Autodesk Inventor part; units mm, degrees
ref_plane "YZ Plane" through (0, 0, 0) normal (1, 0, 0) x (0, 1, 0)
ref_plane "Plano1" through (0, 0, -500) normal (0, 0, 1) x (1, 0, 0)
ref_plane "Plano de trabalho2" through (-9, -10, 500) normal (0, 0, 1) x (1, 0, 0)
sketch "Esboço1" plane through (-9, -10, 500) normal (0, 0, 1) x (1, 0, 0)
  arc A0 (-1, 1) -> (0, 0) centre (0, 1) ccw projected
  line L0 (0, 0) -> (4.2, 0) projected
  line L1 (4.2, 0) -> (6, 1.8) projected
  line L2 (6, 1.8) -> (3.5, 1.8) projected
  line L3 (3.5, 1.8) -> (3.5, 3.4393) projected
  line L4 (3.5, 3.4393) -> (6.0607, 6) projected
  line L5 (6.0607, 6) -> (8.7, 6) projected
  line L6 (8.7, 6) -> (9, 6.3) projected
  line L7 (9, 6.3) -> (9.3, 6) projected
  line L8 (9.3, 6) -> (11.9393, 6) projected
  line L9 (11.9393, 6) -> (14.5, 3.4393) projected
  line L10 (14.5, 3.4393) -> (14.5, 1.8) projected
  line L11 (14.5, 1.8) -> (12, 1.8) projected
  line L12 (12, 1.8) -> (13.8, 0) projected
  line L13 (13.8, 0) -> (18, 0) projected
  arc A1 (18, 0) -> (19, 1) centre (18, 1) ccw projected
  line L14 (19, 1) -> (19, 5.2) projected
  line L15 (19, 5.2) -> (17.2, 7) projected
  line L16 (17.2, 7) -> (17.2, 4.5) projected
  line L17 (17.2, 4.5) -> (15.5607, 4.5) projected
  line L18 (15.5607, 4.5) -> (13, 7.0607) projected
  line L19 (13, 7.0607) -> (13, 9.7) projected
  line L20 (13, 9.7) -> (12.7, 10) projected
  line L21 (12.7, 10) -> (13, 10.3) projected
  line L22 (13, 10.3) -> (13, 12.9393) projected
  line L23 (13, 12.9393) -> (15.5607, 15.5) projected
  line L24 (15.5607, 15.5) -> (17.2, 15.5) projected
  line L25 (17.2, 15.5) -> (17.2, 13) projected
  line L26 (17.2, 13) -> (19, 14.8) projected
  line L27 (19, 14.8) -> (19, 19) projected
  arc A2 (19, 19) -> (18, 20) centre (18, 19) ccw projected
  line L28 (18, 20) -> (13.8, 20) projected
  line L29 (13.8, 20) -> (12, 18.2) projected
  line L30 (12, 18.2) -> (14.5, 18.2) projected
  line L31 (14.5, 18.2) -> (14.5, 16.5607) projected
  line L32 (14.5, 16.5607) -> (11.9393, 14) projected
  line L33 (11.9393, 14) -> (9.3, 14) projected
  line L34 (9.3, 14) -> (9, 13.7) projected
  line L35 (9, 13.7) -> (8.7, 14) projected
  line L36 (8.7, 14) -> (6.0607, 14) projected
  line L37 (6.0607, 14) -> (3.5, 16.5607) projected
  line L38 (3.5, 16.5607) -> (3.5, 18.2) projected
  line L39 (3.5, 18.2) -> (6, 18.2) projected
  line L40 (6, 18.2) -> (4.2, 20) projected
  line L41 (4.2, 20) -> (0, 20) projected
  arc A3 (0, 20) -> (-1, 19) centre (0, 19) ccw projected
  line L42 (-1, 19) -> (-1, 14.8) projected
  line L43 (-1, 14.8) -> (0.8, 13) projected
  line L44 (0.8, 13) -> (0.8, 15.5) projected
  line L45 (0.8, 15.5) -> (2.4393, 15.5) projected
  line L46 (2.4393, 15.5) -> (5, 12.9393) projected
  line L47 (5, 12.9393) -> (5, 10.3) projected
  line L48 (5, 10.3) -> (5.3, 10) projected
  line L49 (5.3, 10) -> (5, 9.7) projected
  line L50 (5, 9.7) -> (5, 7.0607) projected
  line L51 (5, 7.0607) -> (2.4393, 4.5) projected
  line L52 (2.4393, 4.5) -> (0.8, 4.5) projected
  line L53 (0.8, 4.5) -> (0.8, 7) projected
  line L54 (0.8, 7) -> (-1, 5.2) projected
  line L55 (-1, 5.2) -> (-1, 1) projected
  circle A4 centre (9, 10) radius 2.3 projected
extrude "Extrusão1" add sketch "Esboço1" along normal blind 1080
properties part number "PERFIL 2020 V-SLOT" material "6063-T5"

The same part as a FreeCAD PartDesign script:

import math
import FreeCAD as App
import Part
import Sketcher

V = App.Vector

doc = App.newDocument("Part")
body = doc.addObject("PartDesign::Body", "Body")

sketch1 = body.newObject("Sketcher::SketchObject", "Sketch")
sketch1.AttachmentSupport = (doc.getObject("XY_Plane"), [""])
sketch1.MapMode = "FlatFace"
sketch1.AttachmentOffset = App.Placement(V(0, 0, 500), App.Rotation())
sketch1.addGeometry(Part.LineSegment(V(-10, -4.8, 0), V(-10, -9, 0)), False)
sketch1.addGeometry(Part.ArcOfCircle(Part.Circle(V(-9, -9, 0), V(0, 0, 1), 1), math.radians(180), math.radians(270)), False)
sketch1.addGeometry(Part.LineSegment(V(-9, -10, 0), V(-4.8, -10, 0)), False)
sketch1.addGeometry(Part.LineSegment(V(-4.8, -10, 0), V(-3, -8.2, 0)), False)
sketch1.addGeometry(Part.LineSegment(V(-3, -8.2, 0), V(-5.5, -8.2, 0)), False)
sketch1.addGeometry(Part.LineSegment(V(-5.5, -8.2, 0), V(-5.5, -6.56, 0)), False)
sketch1.addGeometry(Part.LineSegment(V(-5.5, -6.56, 0), V(-2.94, -4, 0)), False)
sketch1.addGeometry(Part.LineSegment(V(-2.94, -4, 0), V(-0.3, -4, 0)), False)
sketch1.addGeometry(Part.LineSegment(V(-0.3, -4, 0), V(0, -3.7, 0)), False)
sketch1.addGeometry(Part.LineSegment(V(0, -3.7, 0), V(0.3, -4, 0)), False)
sketch1.addGeometry(Part.LineSegment(V(0.3, -4, 0), V(2.94, -4, 0)), False)
sketch1.addGeometry(Part.LineSegment(V(2.94, -4, 0), V(5.5, -6.56, 0)), False)
sketch1.addGeometry(Part.LineSegment(V(5.5, -6.56, 0), V(5.5, -8.2, 0)), False)
sketch1.addGeometry(Part.LineSegment(V(5.5, -8.2, 0), V(3, -8.2, 0)), False)
sketch1.addGeometry(Part.LineSegment(V(3, -8.2, 0), V(4.8, -10, 0)), False)
sketch1.addGeometry(Part.LineSegment(V(4.8, -10, 0), V(9, -10, 0)), False)
sketch1.addGeometry(Part.ArcOfCircle(Part.Circle(V(9, -9, 0), V(0, 0, 1), 1), math.radians(-90), math.radians(0)), False)
sketch1.addGeometry(Part.LineSegment(V(10, -9, 0), V(10, -4.8, 0)), False)
sketch1.addGeometry(Part.LineSegment(V(10, -4.8, 0), V(8.2, -3, 0)), False)
sketch1.addGeometry(Part.LineSegment(V(8.2, -3, 0), V(8.2, -5.5, 0)), False)
sketch1.addGeometry(Part.LineSegment(V(8.2, -5.5, 0), V(6.56, -5.5, 0)), False)
sketch1.addGeometry(Part.LineSegment(V(6.56, -5.5, 0), V(4, -2.94, 0)), False)
sketch1.addGeometry(Part.LineSegment(V(4, -2.94, 0), V(4, -0.3, 0)), False)
sketch1.addGeometry(Part.LineSegment(V(4, -0.3, 0), V(3.7, 0, 0)), False)
sketch1.addGeometry(Part.LineSegment(V(3.7, 0, 0), V(4, 0.3, 0)), False)
sketch1.addGeometry(Part.LineSegment(V(4, 0.3, 0), V(4, 2.94, 0)), False)
sketch1.addGeometry(Part.LineSegment(V(4, 2.94, 0), V(6.56, 5.5, 0)), False)
sketch1.addGeometry(Part.LineSegment(V(6.56, 5.5, 0), V(8.2, 5.5, 0)), False)
sketch1.addGeometry(Part.LineSegment(V(8.2, 5.5, 0), V(8.2, 3, 0)), False)
sketch1.addGeometry(Part.LineSegment(V(8.2, 3, 0), V(10, 4.8, 0)), False)
sketch1.addGeometry(Part.LineSegment(V(10, 4.8, 0), V(10, 9, 0)), False)
sketch1.addGeometry(Part.ArcOfCircle(Part.Circle(V(9, 9, 0), V(0, 0, 1), 1), math.radians(0), math.radians(90)), False)
sketch1.addGeometry(Part.LineSegment(V(9, 10, 0), V(4.8, 10, 0)), False)
sketch1.addGeometry(Part.LineSegment(V(4.8, 10, 0), V(3, 8.2, 0)), False)
sketch1.addGeometry(Part.LineSegment(V(3, 8.2, 0), V(5.5, 8.2, 0)), False)
sketch1.addGeometry(Part.LineSegment(V(5.5, 8.2, 0), V(5.5, 6.56, 0)), False)
sketch1.addGeometry(Part.LineSegment(V(5.5, 6.56, 0), V(2.94, 4, 0)), False)
sketch1.addGeometry(Part.LineSegment(V(2.94, 4, 0), V(0.3, 4, 0)), False)
sketch1.addGeometry(Part.LineSegment(V(0.3, 4, 0), V(0, 3.7, 0)), False)
sketch1.addGeometry(Part.LineSegment(V(0, 3.7, 0), V(-0.3, 4, 0)), False)
sketch1.addGeometry(Part.LineSegment(V(-0.3, 4, 0), V(-2.94, 4, 0)), False)
sketch1.addGeometry(Part.LineSegment(V(-2.94, 4, 0), V(-5.5, 6.56, 0)), False)
sketch1.addGeometry(Part.LineSegment(V(-5.5, 6.56, 0), V(-5.5, 8.2, 0)), False)
sketch1.addGeometry(Part.LineSegment(V(-5.5, 8.2, 0), V(-3, 8.2, 0)), False)
sketch1.addGeometry(Part.LineSegment(V(-3, 8.2, 0), V(-4.8, 10, 0)), False)
sketch1.addGeometry(Part.LineSegment(V(-4.8, 10, 0), V(-9, 10, 0)), False)
sketch1.addGeometry(Part.ArcOfCircle(Part.Circle(V(-9, 9, 0), V(0, 0, 1), 1), math.radians(90), math.radians(180)), False)
sketch1.addGeometry(Part.LineSegment(V(-10, 9, 0), V(-10, 4.8, 0)), False)
sketch1.addGeometry(Part.LineSegment(V(-10, 4.8, 0), V(-8.2, 3, 0)), False)
sketch1.addGeometry(Part.LineSegment(V(-8.2, 3, 0), V(-8.2, 5.5, 0)), False)
sketch1.addGeometry(Part.LineSegment(V(-8.2, 5.5, 0), V(-6.56, 5.5, 0)), False)
sketch1.addGeometry(Part.LineSegment(V(-6.56, 5.5, 0), V(-4, 2.94, 0)), False)
sketch1.addGeometry(Part.LineSegment(V(-4, 2.94, 0), V(-4, 0.3, 0)), False)
sketch1.addGeometry(Part.LineSegment(V(-4, 0.3, 0), V(-3.7, 0, 0)), False)
sketch1.addGeometry(Part.LineSegment(V(-3.7, 0, 0), V(-4, -0.3, 0)), False)
sketch1.addGeometry(Part.LineSegment(V(-4, -0.3, 0), V(-4, -2.94, 0)), False)
sketch1.addGeometry(Part.LineSegment(V(-4, -2.94, 0), V(-6.56, -5.5, 0)), False)
sketch1.addGeometry(Part.LineSegment(V(-6.56, -5.5, 0), V(-8.2, -5.5, 0)), False)
sketch1.addGeometry(Part.LineSegment(V(-8.2, -5.5, 0), V(-8.2, -3, 0)), False)
sketch1.addGeometry(Part.LineSegment(V(-8.2, -3, 0), V(-10, -4.8, 0)), False)
sketch1.addGeometry(Part.Circle(V(0, 0, 0), V(0, 0, 1), 2.3), False)
sketch1.addConstraint(Sketcher.Constraint("Tangent", 0, 2, 1, 1))
sketch1.addConstraint(Sketcher.Constraint("Tangent", 1, 2, 2, 1))
sketch1.addConstraint(Sketcher.Constraint("Coincident", 2, 2, 3, 1))
sketch1.addConstraint(Sketcher.Constraint("Coincident", 3, 2, 4, 1))
sketch1.addConstraint(Sketcher.Constraint("Coincident", 4, 2, 5, 1))
sketch1.addConstraint(Sketcher.Constraint("Coincident", 5, 2, 6, 1))
sketch1.addConstraint(Sketcher.Constraint("Coincident", 6, 2, 7, 1))
sketch1.addConstraint(Sketcher.Constraint("Coincident", 7, 2, 8, 1))
sketch1.addConstraint(Sketcher.Constraint("Coincident", 8, 2, 9, 1))
sketch1.addConstraint(Sketcher.Constraint("Coincident", 9, 2, 10, 1))
sketch1.addConstraint(Sketcher.Constraint("Coincident", 10, 2, 11, 1))
sketch1.addConstraint(Sketcher.Constraint("Coincident", 11, 2, 12, 1))
sketch1.addConstraint(Sketcher.Constraint("Coincident", 12, 2, 13, 1))
sketch1.addConstraint(Sketcher.Constraint("Coincident", 13, 2, 14, 1))
sketch1.addConstraint(Sketcher.Constraint("Coincident", 14, 2, 15, 1))
sketch1.addConstraint(Sketcher.Constraint("Tangent", 15, 2, 16, 1))
sketch1.addConstraint(Sketcher.Constraint("Tangent", 16, 2, 17, 1))
sketch1.addConstraint(Sketcher.Constraint("Coincident", 17, 2, 18, 1))
sketch1.addConstraint(Sketcher.Constraint("Coincident", 18, 2, 19, 1))
sketch1.addConstraint(Sketcher.Constraint("Coincident", 19, 2, 20, 1))
sketch1.addConstraint(Sketcher.Constraint("Coincident", 20, 2, 21, 1))
sketch1.addConstraint(Sketcher.Constraint("Coincident", 21, 2, 22, 1))
sketch1.addConstraint(Sketcher.Constraint("Coincident", 22, 2, 23, 1))
sketch1.addConstraint(Sketcher.Constraint("Coincident", 23, 2, 24, 1))
sketch1.addConstraint(Sketcher.Constraint("Coincident", 24, 2, 25, 1))
sketch1.addConstraint(Sketcher.Constraint("Coincident", 25, 2, 26, 1))
sketch1.addConstraint(Sketcher.Constraint("Coincident", 26, 2, 27, 1))
sketch1.addConstraint(Sketcher.Constraint("Coincident", 27, 2, 28, 1))
sketch1.addConstraint(Sketcher.Constraint("Coincident", 28, 2, 29, 1))
sketch1.addConstraint(Sketcher.Constraint("Coincident", 29, 2, 30, 1))
sketch1.addConstraint(Sketcher.Constraint("Tangent", 30, 2, 31, 1))
sketch1.addConstraint(Sketcher.Constraint("Tangent", 31, 2, 32, 1))
sketch1.addConstraint(Sketcher.Constraint("Coincident", 32, 2, 33, 1))
sketch1.addConstraint(Sketcher.Constraint("Coincident", 33, 2, 34, 1))
sketch1.addConstraint(Sketcher.Constraint("Coincident", 34, 2, 35, 1))
sketch1.addConstraint(Sketcher.Constraint("Coincident", 35, 2, 36, 1))
sketch1.addConstraint(Sketcher.Constraint("Coincident", 36, 2, 37, 1))
sketch1.addConstraint(Sketcher.Constraint("Coincident", 37, 2, 38, 1))
sketch1.addConstraint(Sketcher.Constraint("Coincident", 38, 2, 39, 1))
sketch1.addConstraint(Sketcher.Constraint("Coincident", 39, 2, 40, 1))
sketch1.addConstraint(Sketcher.Constraint("Coincident", 40, 2, 41, 1))
sketch1.addConstraint(Sketcher.Constraint("Coincident", 41, 2, 42, 1))
sketch1.addConstraint(Sketcher.Constraint("Coincident", 42, 2, 43, 1))
sketch1.addConstraint(Sketcher.Constraint("Coincident", 43, 2, 44, 1))
sketch1.addConstraint(Sketcher.Constraint("Coincident", 44, 2, 45, 1))
sketch1.addConstraint(Sketcher.Constraint("Tangent", 45, 2, 46, 1))
sketch1.addConstraint(Sketcher.Constraint("Tangent", 46, 2, 47, 1))
sketch1.addConstraint(Sketcher.Constraint("Coincident", 47, 2, 48, 1))
sketch1.addConstraint(Sketcher.Constraint("Coincident", 48, 2, 49, 1))
sketch1.addConstraint(Sketcher.Constraint("Coincident", 49, 2, 50, 1))
sketch1.addConstraint(Sketcher.Constraint("Coincident", 50, 2, 51, 1))
sketch1.addConstraint(Sketcher.Constraint("Coincident", 51, 2, 52, 1))
sketch1.addConstraint(Sketcher.Constraint("Coincident", 52, 2, 53, 1))
sketch1.addConstraint(Sketcher.Constraint("Coincident", 53, 2, 54, 1))
sketch1.addConstraint(Sketcher.Constraint("Coincident", 54, 2, 55, 1))
sketch1.addConstraint(Sketcher.Constraint("Coincident", 55, 2, 56, 1))
sketch1.addConstraint(Sketcher.Constraint("Coincident", 56, 2, 57, 1))
sketch1.addConstraint(Sketcher.Constraint("Coincident", 57, 2, 58, 1))
sketch1.addConstraint(Sketcher.Constraint("Coincident", 58, 2, 59, 1))
sketch1.addConstraint(Sketcher.Constraint("Coincident", 59, 2, 0, 1))
sketch1.addConstraint(Sketcher.Constraint("Vertical", 0))
sketch1.addConstraint(Sketcher.Constraint("Horizontal", 2))
sketch1.addConstraint(Sketcher.Constraint("Horizontal", 4))
sketch1.addConstraint(Sketcher.Constraint("Vertical", 5))
sketch1.addConstraint(Sketcher.Constraint("Horizontal", 7))
sketch1.addConstraint(Sketcher.Constraint("Horizontal", 10))
sketch1.addConstraint(Sketcher.Constraint("Vertical", 12))
sketch1.addConstraint(Sketcher.Constraint("Horizontal", 13))
sketch1.addConstraint(Sketcher.Constraint("Horizontal", 15))
sketch1.addConstraint(Sketcher.Constraint("Vertical", 17))
sketch1.addConstraint(Sketcher.Constraint("Vertical", 19))
sketch1.addConstraint(Sketcher.Constraint("Horizontal", 20))
sketch1.addConstraint(Sketcher.Constraint("Vertical", 22))
sketch1.addConstraint(Sketcher.Constraint("Vertical", 25))
sketch1.addConstraint(Sketcher.Constraint("Horizontal", 27))
sketch1.addConstraint(Sketcher.Constraint("Vertical", 28))
sketch1.addConstraint(Sketcher.Constraint("Vertical", 30))
sketch1.addConstraint(Sketcher.Constraint("Horizontal", 32))
sketch1.addConstraint(Sketcher.Constraint("Horizontal", 34))
sketch1.addConstraint(Sketcher.Constraint("Vertical", 35))
sketch1.addConstraint(Sketcher.Constraint("Horizontal", 37))
sketch1.addConstraint(Sketcher.Constraint("Horizontal", 40))
sketch1.addConstraint(Sketcher.Constraint("Vertical", 42))
sketch1.addConstraint(Sketcher.Constraint("Horizontal", 43))
sketch1.addConstraint(Sketcher.Constraint("Horizontal", 45))
sketch1.addConstraint(Sketcher.Constraint("Vertical", 47))
sketch1.addConstraint(Sketcher.Constraint("Vertical", 49))
sketch1.addConstraint(Sketcher.Constraint("Horizontal", 50))
sketch1.addConstraint(Sketcher.Constraint("Vertical", 52))
sketch1.addConstraint(Sketcher.Constraint("Vertical", 55))
sketch1.addConstraint(Sketcher.Constraint("Horizontal", 57))
sketch1.addConstraint(Sketcher.Constraint("Vertical", 58))
sketch1.addConstraint(Sketcher.Constraint("Coincident", 60, 3, -1, 1))
sketch1.addConstraint(Sketcher.Constraint("Equal", 1, 16))
sketch1.addConstraint(Sketcher.Constraint("Equal", 16, 31))
sketch1.addConstraint(Sketcher.Constraint("Equal", 31, 46))
sketch1.addConstraint(Sketcher.Constraint("Symmetric", 1, 3, 31, 3, -1, 1))
sketch1.addConstraint(Sketcher.Constraint("Symmetric", 16, 3, 46, 3, -1, 1))
sketch1.addConstraint(Sketcher.Constraint("Symmetric", 3, 2, 33, 2, -1, 1))
sketch1.addConstraint(Sketcher.Constraint("Symmetric", 5, 2, 35, 2, -1, 1))
sketch1.addConstraint(Sketcher.Constraint("Symmetric", 6, 2, 36, 2, -1, 1))
sketch1.addConstraint(Sketcher.Constraint("Symmetric", 8, 2, 38, 2, -1, 1))
sketch1.addConstraint(Sketcher.Constraint("Symmetric", 9, 2, 39, 2, -1, 1))
sketch1.addConstraint(Sketcher.Constraint("Symmetric", 11, 2, 41, 2, -1, 1))
sketch1.addConstraint(Sketcher.Constraint("Symmetric", 13, 2, 43, 2, -1, 1))
sketch1.addConstraint(Sketcher.Constraint("Symmetric", 18, 2, 48, 2, -1, 1))
sketch1.addConstraint(Sketcher.Constraint("Symmetric", 20, 2, 50, 2, -1, 1))
sketch1.addConstraint(Sketcher.Constraint("Symmetric", 21, 2, 51, 2, -1, 1))
sketch1.addConstraint(Sketcher.Constraint("Symmetric", 23, 2, 53, 2, -1, 1))
sketch1.addConstraint(Sketcher.Constraint("Symmetric", 24, 2, 54, 2, -1, 1))
sketch1.addConstraint(Sketcher.Constraint("Symmetric", 26, 2, 56, 2, -1, 1))
sketch1.addConstraint(Sketcher.Constraint("Symmetric", 28, 2, 58, 2, -1, 1))
sketch1.addConstraint(Sketcher.Constraint("Symmetric", 1, 3, 16, 3, -2))
sketch1.addConstraint(Sketcher.Constraint("Symmetric", 7, 2, 9, 2, -2))
sketch1.addConstraint(Sketcher.Constraint("Symmetric", 5, 2, 11, 2, -2))
sketch1.addConstraint(Sketcher.Constraint("Symmetric", 3, 2, 13, 2, -2))
sketch1.addConstraint(Sketcher.Constraint("Symmetric", 28, 2, 48, 2, -2))
sketch1.addConstraint(Sketcher.Constraint("Symmetric", 26, 2, 50, 2, -2))
sketch1.addConstraint(Sketcher.Constraint("Symmetric", 25, 2, 51, 2, -2))
sketch1.addConstraint(Sketcher.Constraint("PointOnObject", 8, 2, -2))
sketch1.addConstraint(Sketcher.Constraint("PointOnObject", 23, 2, -1))
sketch1.addConstraint(Sketcher.Constraint("Parallel", 3, 6))
sketch1.addConstraint(Sketcher.Constraint("Parallel", 6, 8))
sketch1.addConstraint(Sketcher.Constraint("Perpendicular", 8, 9))
sketch1.addConstraint(Sketcher.Constraint("Parallel", 9, 11))
sketch1.addConstraint(Sketcher.Constraint("Parallel", 11, 14))
sketch1.addConstraint(Sketcher.Constraint("Parallel", 14, 18))
sketch1.addConstraint(Sketcher.Constraint("Parallel", 18, 21))
sketch1.addConstraint(Sketcher.Constraint("Parallel", 21, 23))
sketch1.addConstraint(Sketcher.Constraint("Perpendicular", 23, 24))
sketch1.addConstraint(Sketcher.Constraint("Parallel", 26, 29))
sketch1.addConstraint(Sketcher.Constraint("Parallel", 29, 33))
sketch1.addConstraint(Sketcher.Constraint("Parallel", 36, 38))
sketch1.addConstraint(Sketcher.Constraint("Parallel", 39, 41))
sketch1.addConstraint(Sketcher.Constraint("Parallel", 41, 44))
sketch1.addConstraint(Sketcher.Constraint("Parallel", 44, 48))
sketch1.addConstraint(Sketcher.Constraint("Parallel", 51, 53))
sketch1.addConstraint(Sketcher.Constraint("Parallel", 54, 56))
sketch1.addConstraint(Sketcher.Constraint("Parallel", 56, 59))
sketch1.addConstraint(Sketcher.Constraint("Equal", 45, 0))
sketch1.addConstraint(Sketcher.Constraint("Equal", 57, 5))
sketch1.addConstraint(Sketcher.Constraint("Equal", 43, 19))
sketch1.addConstraint(Sketcher.Constraint("Equal", 40, 22))
sketch1.addConstraint(Sketcher.Constraint("Equal", 14, 18))
sketch1.addConstraint(Sketcher.Constraint("Equal", 11, 21))
sketch1.addConstraint(Sketcher.Constraint("Equal", 9, 23))
sketch1.addConstraint(Sketcher.Constraint("Radius", 1, 1.0))
sketch1.addConstraint(Sketcher.Constraint("Diameter", 60, 4.6))
sketch1.addConstraint(Sketcher.Constraint("DistanceX", 2, 1, 2, 2, 4.2))
sketch1.addConstraint(Sketcher.Constraint("DistanceX", 4, 2, 4, 1, 2.5))
sketch1.addConstraint(Sketcher.Constraint("DistanceX", 1, 3, -1, 1, 9.0))
sketch1.addConstraint(Sketcher.Constraint("DistanceX", 3, 2, -1, 1, 3.0))
sketch1.addConstraint(Sketcher.Constraint("DistanceY", 6, 2, -1, 1, 4.0))
sketch1.addConstraint(Sketcher.Constraint("DistanceX", 7, 2, -1, 1, 0.3))
sketch1.addConstraint(Sketcher.Constraint("DistanceX", 7, 1, 7, 2, 2.6393))
pad1 = body.newObject("PartDesign::Pad", "Pad")
pad1.Profile = sketch1
pad1.Length = 1080

doc.recompute()
